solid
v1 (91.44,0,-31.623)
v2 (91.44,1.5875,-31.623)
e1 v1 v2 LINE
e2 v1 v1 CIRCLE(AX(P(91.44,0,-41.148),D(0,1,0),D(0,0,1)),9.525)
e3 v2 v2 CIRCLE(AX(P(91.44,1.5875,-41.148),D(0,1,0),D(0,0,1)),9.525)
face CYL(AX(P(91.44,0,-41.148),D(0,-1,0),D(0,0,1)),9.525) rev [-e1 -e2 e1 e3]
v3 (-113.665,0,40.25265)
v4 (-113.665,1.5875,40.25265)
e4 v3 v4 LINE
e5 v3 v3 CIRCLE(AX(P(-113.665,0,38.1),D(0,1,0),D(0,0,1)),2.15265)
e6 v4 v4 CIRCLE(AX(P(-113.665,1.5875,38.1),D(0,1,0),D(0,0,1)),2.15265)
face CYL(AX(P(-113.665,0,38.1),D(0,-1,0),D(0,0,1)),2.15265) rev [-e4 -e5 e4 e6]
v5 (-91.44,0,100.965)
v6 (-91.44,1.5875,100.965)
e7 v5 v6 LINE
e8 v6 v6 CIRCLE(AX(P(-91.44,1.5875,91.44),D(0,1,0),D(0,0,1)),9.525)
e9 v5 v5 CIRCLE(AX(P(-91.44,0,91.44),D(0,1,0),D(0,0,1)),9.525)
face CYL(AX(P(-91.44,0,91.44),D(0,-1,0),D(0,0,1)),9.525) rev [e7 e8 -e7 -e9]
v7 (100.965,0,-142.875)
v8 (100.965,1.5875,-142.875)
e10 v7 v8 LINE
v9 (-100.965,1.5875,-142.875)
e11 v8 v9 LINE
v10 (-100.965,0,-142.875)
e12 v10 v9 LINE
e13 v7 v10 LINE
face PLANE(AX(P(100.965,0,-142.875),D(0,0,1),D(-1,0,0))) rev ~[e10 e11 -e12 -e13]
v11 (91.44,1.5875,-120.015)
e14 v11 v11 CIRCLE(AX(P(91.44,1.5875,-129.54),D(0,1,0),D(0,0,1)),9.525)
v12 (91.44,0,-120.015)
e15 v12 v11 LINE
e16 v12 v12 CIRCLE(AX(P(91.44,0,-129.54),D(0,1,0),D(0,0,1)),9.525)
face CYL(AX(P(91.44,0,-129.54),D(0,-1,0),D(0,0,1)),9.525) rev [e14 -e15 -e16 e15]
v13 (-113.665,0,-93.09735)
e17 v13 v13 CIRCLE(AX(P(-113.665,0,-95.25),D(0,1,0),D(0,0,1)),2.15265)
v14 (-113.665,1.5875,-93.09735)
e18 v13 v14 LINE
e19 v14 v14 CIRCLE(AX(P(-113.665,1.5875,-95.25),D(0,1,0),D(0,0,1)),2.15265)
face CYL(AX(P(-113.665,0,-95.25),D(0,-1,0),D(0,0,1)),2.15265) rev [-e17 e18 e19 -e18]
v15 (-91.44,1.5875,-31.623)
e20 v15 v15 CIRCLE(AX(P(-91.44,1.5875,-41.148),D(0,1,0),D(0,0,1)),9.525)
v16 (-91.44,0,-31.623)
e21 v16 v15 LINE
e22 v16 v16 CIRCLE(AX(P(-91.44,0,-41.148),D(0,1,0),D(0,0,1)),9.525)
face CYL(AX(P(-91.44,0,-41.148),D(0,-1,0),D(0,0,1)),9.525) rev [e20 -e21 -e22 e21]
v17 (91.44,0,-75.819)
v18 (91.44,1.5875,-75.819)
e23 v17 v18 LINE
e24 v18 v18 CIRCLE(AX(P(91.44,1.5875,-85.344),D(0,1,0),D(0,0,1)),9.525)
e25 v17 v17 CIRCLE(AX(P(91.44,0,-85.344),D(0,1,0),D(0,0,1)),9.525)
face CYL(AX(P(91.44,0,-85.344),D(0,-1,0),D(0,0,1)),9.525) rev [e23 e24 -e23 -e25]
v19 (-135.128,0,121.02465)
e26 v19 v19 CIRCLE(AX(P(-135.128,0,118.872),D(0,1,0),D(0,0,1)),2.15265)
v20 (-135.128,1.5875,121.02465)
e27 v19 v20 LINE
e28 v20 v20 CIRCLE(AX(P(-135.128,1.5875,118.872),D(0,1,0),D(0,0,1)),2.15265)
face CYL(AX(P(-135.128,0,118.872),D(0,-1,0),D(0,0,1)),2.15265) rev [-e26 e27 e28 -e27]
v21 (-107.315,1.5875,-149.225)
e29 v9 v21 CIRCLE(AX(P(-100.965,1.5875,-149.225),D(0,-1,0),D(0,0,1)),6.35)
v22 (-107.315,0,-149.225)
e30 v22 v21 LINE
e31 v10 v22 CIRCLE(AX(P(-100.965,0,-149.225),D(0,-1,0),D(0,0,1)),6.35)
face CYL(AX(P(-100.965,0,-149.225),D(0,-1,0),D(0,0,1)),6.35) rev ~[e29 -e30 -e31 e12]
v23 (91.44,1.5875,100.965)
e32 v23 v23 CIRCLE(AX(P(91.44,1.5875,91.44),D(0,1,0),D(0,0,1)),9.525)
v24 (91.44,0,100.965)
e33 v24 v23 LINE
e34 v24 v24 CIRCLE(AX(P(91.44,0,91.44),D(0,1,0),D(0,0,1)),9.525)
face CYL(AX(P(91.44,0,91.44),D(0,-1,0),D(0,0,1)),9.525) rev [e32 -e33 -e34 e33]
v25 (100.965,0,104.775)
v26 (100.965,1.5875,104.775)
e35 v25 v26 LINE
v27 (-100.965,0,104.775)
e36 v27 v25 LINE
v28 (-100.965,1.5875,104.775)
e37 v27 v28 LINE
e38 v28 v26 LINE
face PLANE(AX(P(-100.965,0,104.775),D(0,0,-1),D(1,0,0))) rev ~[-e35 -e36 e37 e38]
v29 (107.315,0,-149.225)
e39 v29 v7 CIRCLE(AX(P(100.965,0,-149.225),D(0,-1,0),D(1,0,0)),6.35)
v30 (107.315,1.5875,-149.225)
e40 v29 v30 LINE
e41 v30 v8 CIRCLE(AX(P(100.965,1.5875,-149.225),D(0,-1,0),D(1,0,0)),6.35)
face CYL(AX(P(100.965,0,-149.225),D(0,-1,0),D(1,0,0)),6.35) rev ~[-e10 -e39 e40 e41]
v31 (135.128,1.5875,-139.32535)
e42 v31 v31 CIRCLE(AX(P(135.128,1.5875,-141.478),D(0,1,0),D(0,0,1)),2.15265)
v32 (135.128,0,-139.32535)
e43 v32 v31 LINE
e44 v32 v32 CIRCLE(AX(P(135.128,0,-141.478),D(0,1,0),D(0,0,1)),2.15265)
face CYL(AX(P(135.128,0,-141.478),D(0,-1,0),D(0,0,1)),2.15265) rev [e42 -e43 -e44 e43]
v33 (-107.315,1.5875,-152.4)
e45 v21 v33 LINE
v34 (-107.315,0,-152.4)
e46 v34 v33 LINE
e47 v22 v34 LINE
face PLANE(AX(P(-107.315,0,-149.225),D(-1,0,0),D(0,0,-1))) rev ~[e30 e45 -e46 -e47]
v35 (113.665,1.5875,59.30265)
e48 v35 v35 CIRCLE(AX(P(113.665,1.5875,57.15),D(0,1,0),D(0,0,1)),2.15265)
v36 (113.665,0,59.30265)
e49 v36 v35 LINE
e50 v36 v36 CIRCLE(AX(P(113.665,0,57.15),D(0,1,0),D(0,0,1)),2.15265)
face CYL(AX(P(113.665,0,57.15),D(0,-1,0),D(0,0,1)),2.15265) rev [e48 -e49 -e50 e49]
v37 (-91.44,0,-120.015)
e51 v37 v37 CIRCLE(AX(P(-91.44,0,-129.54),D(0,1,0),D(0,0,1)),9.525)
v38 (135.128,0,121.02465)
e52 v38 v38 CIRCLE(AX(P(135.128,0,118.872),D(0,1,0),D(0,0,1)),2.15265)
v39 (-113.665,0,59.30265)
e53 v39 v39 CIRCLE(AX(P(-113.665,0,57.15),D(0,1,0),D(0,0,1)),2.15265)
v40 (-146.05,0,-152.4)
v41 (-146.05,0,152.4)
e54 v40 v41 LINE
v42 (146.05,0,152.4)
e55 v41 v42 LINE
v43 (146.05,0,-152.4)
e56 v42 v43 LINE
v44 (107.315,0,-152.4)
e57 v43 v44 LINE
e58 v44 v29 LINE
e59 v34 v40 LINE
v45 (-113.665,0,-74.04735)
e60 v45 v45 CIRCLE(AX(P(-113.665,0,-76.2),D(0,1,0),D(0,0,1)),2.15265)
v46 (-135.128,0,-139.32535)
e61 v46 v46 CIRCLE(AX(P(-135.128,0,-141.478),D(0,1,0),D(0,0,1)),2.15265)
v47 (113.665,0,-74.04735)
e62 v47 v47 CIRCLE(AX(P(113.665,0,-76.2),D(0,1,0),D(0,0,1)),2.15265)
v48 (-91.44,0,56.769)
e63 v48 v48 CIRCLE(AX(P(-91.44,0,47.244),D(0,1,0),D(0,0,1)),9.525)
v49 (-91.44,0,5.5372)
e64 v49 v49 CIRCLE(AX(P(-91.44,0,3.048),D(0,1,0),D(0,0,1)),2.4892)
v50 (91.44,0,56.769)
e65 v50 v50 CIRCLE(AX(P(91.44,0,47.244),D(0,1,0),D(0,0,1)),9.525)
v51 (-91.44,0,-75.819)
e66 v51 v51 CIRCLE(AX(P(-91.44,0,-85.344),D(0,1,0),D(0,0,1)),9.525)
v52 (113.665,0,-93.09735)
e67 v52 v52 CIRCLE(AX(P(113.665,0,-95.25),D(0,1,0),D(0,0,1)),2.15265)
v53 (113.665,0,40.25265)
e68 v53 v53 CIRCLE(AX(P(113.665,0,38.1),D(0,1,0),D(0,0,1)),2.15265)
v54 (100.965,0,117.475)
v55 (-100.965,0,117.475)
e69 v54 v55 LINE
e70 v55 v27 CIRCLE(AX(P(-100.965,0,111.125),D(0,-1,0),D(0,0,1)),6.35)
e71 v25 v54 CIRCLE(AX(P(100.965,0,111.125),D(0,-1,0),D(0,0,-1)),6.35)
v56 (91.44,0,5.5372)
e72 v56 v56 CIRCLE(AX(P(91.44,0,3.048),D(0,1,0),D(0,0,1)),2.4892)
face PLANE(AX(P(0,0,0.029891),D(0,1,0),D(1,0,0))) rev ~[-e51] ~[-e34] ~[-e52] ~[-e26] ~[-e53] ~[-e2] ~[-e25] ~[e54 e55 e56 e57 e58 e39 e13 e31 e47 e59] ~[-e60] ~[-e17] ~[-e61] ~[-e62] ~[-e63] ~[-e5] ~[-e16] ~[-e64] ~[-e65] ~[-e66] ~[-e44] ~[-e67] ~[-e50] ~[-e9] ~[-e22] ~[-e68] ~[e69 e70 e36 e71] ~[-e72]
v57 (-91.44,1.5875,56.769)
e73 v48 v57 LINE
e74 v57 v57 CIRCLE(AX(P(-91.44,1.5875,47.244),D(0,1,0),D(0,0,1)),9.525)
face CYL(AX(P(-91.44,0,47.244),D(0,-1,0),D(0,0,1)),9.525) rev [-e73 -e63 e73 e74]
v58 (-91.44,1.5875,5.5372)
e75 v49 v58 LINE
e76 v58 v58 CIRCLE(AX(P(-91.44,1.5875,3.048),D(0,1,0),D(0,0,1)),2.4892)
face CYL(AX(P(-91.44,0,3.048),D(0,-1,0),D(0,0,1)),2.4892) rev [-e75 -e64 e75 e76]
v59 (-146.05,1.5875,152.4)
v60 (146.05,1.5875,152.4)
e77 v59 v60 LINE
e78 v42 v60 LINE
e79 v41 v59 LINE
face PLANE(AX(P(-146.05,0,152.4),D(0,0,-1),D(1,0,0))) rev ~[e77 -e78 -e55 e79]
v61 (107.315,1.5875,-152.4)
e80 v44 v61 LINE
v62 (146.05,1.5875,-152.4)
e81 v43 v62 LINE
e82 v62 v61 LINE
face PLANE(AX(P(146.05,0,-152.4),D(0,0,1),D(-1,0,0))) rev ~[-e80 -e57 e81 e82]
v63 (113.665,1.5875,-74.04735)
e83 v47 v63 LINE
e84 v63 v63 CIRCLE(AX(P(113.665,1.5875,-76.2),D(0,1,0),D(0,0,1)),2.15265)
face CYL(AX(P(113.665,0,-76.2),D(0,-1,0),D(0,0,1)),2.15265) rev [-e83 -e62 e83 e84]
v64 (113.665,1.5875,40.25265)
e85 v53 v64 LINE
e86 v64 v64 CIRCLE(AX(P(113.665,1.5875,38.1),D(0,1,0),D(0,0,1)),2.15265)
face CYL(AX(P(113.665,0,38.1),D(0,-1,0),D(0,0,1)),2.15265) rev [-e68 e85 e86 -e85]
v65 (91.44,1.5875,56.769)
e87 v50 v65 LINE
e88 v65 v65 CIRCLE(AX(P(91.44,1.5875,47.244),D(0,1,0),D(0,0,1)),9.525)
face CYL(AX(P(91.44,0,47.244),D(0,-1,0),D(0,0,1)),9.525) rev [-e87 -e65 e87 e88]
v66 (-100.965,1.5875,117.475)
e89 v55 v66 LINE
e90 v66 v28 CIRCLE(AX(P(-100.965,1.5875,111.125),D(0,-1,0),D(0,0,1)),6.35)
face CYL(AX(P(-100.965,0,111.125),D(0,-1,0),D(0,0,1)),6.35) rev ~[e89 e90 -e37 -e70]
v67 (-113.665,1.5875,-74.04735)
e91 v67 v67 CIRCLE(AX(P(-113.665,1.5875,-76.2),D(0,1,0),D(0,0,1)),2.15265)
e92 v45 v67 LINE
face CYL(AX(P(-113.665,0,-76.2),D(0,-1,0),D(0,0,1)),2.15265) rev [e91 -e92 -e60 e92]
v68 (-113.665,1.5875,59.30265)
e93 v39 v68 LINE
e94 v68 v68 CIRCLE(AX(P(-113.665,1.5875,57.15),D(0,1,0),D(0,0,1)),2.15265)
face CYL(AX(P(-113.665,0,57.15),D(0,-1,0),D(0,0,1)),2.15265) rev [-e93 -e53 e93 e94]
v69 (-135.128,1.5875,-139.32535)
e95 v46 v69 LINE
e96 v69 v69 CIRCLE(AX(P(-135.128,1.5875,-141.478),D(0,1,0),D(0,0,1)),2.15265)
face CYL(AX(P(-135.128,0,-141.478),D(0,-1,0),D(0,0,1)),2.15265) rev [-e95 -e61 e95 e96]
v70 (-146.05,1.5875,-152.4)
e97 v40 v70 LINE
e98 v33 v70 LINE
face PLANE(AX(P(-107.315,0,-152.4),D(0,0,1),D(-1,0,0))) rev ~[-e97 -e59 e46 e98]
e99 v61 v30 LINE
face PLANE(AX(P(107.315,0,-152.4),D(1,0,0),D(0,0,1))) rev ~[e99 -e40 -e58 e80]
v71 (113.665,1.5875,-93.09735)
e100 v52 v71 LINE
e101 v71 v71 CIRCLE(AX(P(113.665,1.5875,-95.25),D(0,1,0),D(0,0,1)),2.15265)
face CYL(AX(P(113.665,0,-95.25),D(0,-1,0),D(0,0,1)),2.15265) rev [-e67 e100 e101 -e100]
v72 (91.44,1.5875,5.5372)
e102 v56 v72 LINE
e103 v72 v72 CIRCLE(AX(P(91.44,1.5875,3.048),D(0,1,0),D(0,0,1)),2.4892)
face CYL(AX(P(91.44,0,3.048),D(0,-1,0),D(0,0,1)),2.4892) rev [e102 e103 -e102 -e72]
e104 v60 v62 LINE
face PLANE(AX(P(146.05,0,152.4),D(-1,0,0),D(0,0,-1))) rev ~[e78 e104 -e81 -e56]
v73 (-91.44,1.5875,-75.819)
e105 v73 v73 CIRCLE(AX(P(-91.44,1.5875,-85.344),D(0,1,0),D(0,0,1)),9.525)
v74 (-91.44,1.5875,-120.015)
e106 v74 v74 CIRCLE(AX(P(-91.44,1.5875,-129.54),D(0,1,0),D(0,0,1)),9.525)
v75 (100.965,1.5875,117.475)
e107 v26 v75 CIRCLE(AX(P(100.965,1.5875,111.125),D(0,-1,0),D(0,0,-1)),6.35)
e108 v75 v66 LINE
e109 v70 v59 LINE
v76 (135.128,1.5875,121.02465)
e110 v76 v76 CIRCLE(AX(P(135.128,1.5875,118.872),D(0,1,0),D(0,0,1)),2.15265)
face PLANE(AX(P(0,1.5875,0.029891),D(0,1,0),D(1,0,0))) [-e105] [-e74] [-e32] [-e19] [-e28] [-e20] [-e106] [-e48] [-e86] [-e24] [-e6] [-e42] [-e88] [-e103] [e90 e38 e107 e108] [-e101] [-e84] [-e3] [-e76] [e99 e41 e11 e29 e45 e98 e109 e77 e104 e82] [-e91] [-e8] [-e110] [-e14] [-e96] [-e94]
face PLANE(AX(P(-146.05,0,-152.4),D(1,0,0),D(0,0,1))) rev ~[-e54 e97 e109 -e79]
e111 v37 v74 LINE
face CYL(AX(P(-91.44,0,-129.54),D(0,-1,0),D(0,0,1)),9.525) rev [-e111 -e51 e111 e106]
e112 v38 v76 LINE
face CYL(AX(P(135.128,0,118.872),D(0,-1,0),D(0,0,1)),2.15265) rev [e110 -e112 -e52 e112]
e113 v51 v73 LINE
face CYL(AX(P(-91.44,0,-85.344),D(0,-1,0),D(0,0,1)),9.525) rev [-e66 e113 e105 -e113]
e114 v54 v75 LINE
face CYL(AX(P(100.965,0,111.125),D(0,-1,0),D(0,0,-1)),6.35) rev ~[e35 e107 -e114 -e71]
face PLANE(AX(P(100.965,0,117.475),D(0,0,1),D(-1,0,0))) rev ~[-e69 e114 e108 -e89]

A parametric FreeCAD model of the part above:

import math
import FreeCAD as App
import Part
import Sketcher
Q = App.Units.Quantity

doc = App.newDocument("Part")
body = doc.addObject("PartDesign::Body", "Body")

sketch1 = doc.addObject("Sketcher::SketchObject", "Sketch")
body.addObject(sketch1)
sketch1.AttachmentSupport = (doc.XZ_Plane, [""])
sketch1.MapMode = "FlatFace"
sketch1.addGeometry(Part.LineSegment(App.Vector(-107.3, -152.4, 0), App.Vector(-146.1, -152.4, 0)), False)
sketch1.addGeometry(Part.LineSegment(App.Vector(-146.1, -152.4, 0), App.Vector(-146.1, 152.4, 0)), False)
sketch1.addGeometry(Part.LineSegment(App.Vector(-146.1, 152.4, 0), App.Vector(146.1, 152.4, 0)), False)
sketch1.addGeometry(Part.LineSegment(App.Vector(146.1, 152.4, 0), App.Vector(146.1, -152.4, 0)), False)
sketch1.addGeometry(Part.LineSegment(App.Vector(146.1, -152.4, 0), App.Vector(107.3, -152.4, 0)), False)
sketch1.addGeometry(Part.LineSegment(App.Vector(107.3, -152.4, 0), App.Vector(107.3, -149.2, 0)), False)
sketch1.addGeometry(Part.ArcOfCircle(Part.Circle(App.Vector(101, -149.2, 0), App.Vector(0, 0, 1), 6.3), math.radians(0), math.radians(90)), False)
sketch1.addGeometry(Part.LineSegment(App.Vector(101, -142.9, 0), App.Vector(-101, -142.9, 0)), False)
sketch1.addGeometry(Part.ArcOfCircle(Part.Circle(App.Vector(-101, -149.2, 0), App.Vector(0, 0, 1), 6.3), math.radians(90), math.radians(180)), False)
sketch1.addGeometry(Part.LineSegment(App.Vector(-107.3, -149.2, 0), App.Vector(-107.3, -152.4, 0)), False)
sketch1.addGeometry(Part.Circle(App.Vector(-135.1, 118.9, 0), App.Vector(0, 0, 1), 2.2), False)
sketch1.addGeometry(Part.Circle(App.Vector(-91.4, 91.4, 0), App.Vector(0, 0, 1), 9.5), False)
sketch1.addGeometry(Part.Circle(App.Vector(-113.7, 57.1, 0), App.Vector(0, 0, 1), 2.2), False)
sketch1.addGeometry(Part.Circle(App.Vector(-113.7, 38.1, 0), App.Vector(0, 0, 1), 2.2), False)
sketch1.addGeometry(Part.Circle(App.Vector(-91.4, 47.2, 0), App.Vector(0, 0, 1), 9.5), False)
sketch1.addGeometry(Part.Circle(App.Vector(-91.4, 3, 0), App.Vector(0, 0, 1), 2.5), False)
sketch1.addGeometry(Part.LineSegment(App.Vector(101, 117.5, 0), App.Vector(-101, 117.5, 0)), False)
sketch1.addGeometry(Part.ArcOfCircle(Part.Circle(App.Vector(-101, 111.1, 0), App.Vector(0, 0, 1), 6.3), math.radians(90), math.radians(270)), False)
sketch1.addGeometry(Part.LineSegment(App.Vector(-101, 104.8, 0), App.Vector(101, 104.8, 0)), False)
sketch1.addGeometry(Part.ArcOfCircle(Part.Circle(App.Vector(101, 111.1, 0), App.Vector(0, 0, 1), 6.3), math.radians(-90), math.radians(90)), False)
sketch1.addGeometry(Part.Circle(App.Vector(91.4, 91.4, 0), App.Vector(0, 0, 1), 9.5), False)
sketch1.addGeometry(Part.Circle(App.Vector(135.1, 118.9, 0), App.Vector(0, 0, 1), 2.2), False)
sketch1.addGeometry(Part.Circle(App.Vector(113.7, 57.1, 0), App.Vector(0, 0, 1), 2.2), False)
sketch1.addGeometry(Part.Circle(App.Vector(91.4, 47.2, 0), App.Vector(0, 0, 1), 9.5), False)
sketch1.addGeometry(Part.Circle(App.Vector(113.7, 38.1, 0), App.Vector(0, 0, 1), 2.2), False)
sketch1.addGeometry(Part.Circle(App.Vector(91.4, 3, 0), App.Vector(0, 0, 1), 2.5), False)
sketch1.addGeometry(Part.Circle(App.Vector(-91.4, -41.1, 0), App.Vector(0, 0, 1), 9.5), False)
sketch1.addGeometry(Part.Circle(App.Vector(-113.7, -76.2, 0), App.Vector(0, 0, 1), 2.2), False)
sketch1.addGeometry(Part.Circle(App.Vector(-113.7, -95.2, 0), App.Vector(0, 0, 1), 2.2), False)
sketch1.addGeometry(Part.Circle(App.Vector(-91.4, -85.3, 0), App.Vector(0, 0, 1), 9.5), False)
sketch1.addGeometry(Part.Circle(App.Vector(-135.1, -141.5, 0), App.Vector(0, 0, 1), 2.2), False)
sketch1.addGeometry(Part.Circle(App.Vector(-91.4, -129.5, 0), App.Vector(0, 0, 1), 9.5), False)
sketch1.addGeometry(Part.Circle(App.Vector(91.4, -41.1, 0), App.Vector(0, 0, 1), 9.5), False)
sketch1.addGeometry(Part.Circle(App.Vector(113.7, -76.2, 0), App.Vector(0, 0, 1), 2.2), False)
sketch1.addGeometry(Part.Circle(App.Vector(91.4, -85.3, 0), App.Vector(0, 0, 1), 9.5), False)
sketch1.addGeometry(Part.Circle(App.Vector(113.7, -95.2, 0), App.Vector(0, 0, 1), 2.2), False)
sketch1.addGeometry(Part.Circle(App.Vector(91.4, -129.5, 0), App.Vector(0, 0, 1), 9.5), False)
sketch1.addGeometry(Part.Circle(App.Vector(135.1, -141.5, 0), App.Vector(0, 0, 1), 2.2), False)
sketch1.addConstraint(Sketcher.Constraint("Coincident", 0, 2, 1, 1))
sketch1.addConstraint(Sketcher.Constraint("Coincident", 1, 2, 2, 1))
sketch1.addConstraint(Sketcher.Constraint("Coincident", 2, 2, 3, 1))
sketch1.addConstraint(Sketcher.Constraint("Coincident", 3, 2, 4, 1))
sketch1.addConstraint(Sketcher.Constraint("Coincident", 4, 2, 5, 1))
sketch1.addConstraint(Sketcher.Constraint("Tangent", 5, 2, 6, 1))
sketch1.addConstraint(Sketcher.Constraint("Tangent", 6, 2, 7, 1))
sketch1.addConstraint(Sketcher.Constraint("Tangent", 7, 2, 8, 1))
sketch1.addConstraint(Sketcher.Constraint("Tangent", 8, 2, 9, 1))
sketch1.addConstraint(Sketcher.Constraint("Coincident", 9, 2, 0, 1))
sketch1.addConstraint(Sketcher.Constraint("Tangent", 16, 2, 17, 1))
sketch1.addConstraint(Sketcher.Constraint("Tangent", 17, 2, 18, 1))
sketch1.addConstraint(Sketcher.Constraint("Tangent", 18, 2, 19, 1))
sketch1.addConstraint(Sketcher.Constraint("Tangent", 19, 2, 16, 1))
sketch1.addConstraint(Sketcher.Constraint("Horizontal", 0))
sketch1.addConstraint(Sketcher.Constraint("Vertical", 1))
sketch1.addConstraint(Sketcher.Constraint("Horizontal", 2))
sketch1.addConstraint(Sketcher.Constraint("Vertical", 3))
sketch1.addConstraint(Sketcher.Constraint("Horizontal", 4))
sketch1.addConstraint(Sketcher.Constraint("Vertical", 5))
sketch1.addConstraint(Sketcher.Constraint("Horizontal", 7))
sketch1.addConstraint(Sketcher.Constraint("Vertical", 9))
sketch1.addConstraint(Sketcher.Constraint("Horizontal", 16))
sketch1.addConstraint(Sketcher.Constraint("Horizontal", 18))
sketch1.addConstraint(Sketcher.Constraint("Equal", 6, 8))
sketch1.addConstraint(Sketcher.Constraint("Equal", 10, 12))
sketch1.addConstraint(Sketcher.Constraint("Equal", 12, 13))
sketch1.addConstraint(Sketcher.Constraint("Equal", 11, 14))
sketch1.addConstraint(Sketcher.Constraint("Equal", 8, 17))
sketch1.addConstraint(Sketcher.Constraint("Equal", 14, 20))
sketch1.addConstraint(Sketcher.Constraint("Equal", 13, 21))
sketch1.addConstraint(Sketcher.Constraint("Equal", 21, 22))
sketch1.addConstraint(Sketcher.Constraint("Equal", 20, 23))
sketch1.addConstraint(Sketcher.Constraint("Equal", 22, 24))
sketch1.addConstraint(Sketcher.Constraint("Equal", 15, 25))
sketch1.addConstraint(Sketcher.Constraint("Equal", 23, 26))
sketch1.addConstraint(Sketcher.Constraint("Equal", 24, 27))
sketch1.addConstraint(Sketcher.Constraint("Equal", 27, 28))
sketch1.addConstraint(Sketcher.Constraint("Equal", 26, 29))
sketch1.addConstraint(Sketcher.Constraint("Equal", 28, 30))
sketch1.addConstraint(Sketcher.Constraint("Equal", 29, 31))
sketch1.addConstraint(Sketcher.Constraint("Equal", 31, 32))
sketch1.addConstraint(Sketcher.Constraint("Equal", 30, 33))
sketch1.addConstraint(Sketcher.Constraint("Equal", 32, 34))
sketch1.addConstraint(Sketcher.Constraint("Equal", 33, 35))
sketch1.addConstraint(Sketcher.Constraint("Equal", 34, 36))
sketch1.addConstraint(Sketcher.Constraint("Equal", 35, 37))
sketch1.addConstraint(Sketcher.Constraint("Symmetric", 0, 2, 2, 2, -1, 1))
sketch1.addConstraint(Sketcher.Constraint("Symmetric", 11, 3, 20, 3, -2))
sketch1.addConstraint(Sketcher.Constraint("Symmetric", 10, 3, 21, 3, -2))
sketch1.addConstraint(Sketcher.Constraint("Symmetric", 12, 3, 22, 3, -2))
sketch1.addConstraint(Sketcher.Constraint("Symmetric", 14, 3, 23, 3, -2))
sketch1.addConstraint(Sketcher.Constraint("Symmetric", 13, 3, 24, 3, -2))
sketch1.addConstraint(Sketcher.Constraint("Symmetric", 15, 3, 25, 3, -2))
sketch1.addConstraint(Sketcher.Constraint("Symmetric", 26, 3, 32, 3, -2))
sketch1.addConstraint(Sketcher.Constraint("Symmetric", 27, 3, 33, 3, -2))
sketch1.addConstraint(Sketcher.Constraint("Symmetric", 29, 3, 34, 3, -2))
sketch1.addConstraint(Sketcher.Constraint("Symmetric", 28, 3, 35, 3, -2))
sketch1.addConstraint(Sketcher.Constraint("Symmetric", 31, 3, 36, 3, -2))
sketch1.addConstraint(Sketcher.Constraint("Symmetric", 30, 3, 37, 3, -2))
sketch1.addConstraint(Sketcher.Constraint("Symmetric", 4, 2, 9, 2, -2))
sketch1.addConstraint(Sketcher.Constraint("Vertical", 12, 3, 13, 3))
sketch1.addConstraint(Sketcher.Constraint("Vertical", 11, 3, 14, 3))
sketch1.addConstraint(Sketcher.Constraint("Vertical", 14, 3, 15, 3))
sketch1.addConstraint(Sketcher.Constraint("Vertical", 8, 3, 17, 3))
sketch1.addConstraint(Sketcher.Constraint("Vertical", 6, 3, 19, 3))
sketch1.addConstraint(Sketcher.Constraint("Vertical", 15, 3, 26, 3))
sketch1.addConstraint(Sketcher.Constraint("Vertical", 13, 3, 27, 3))
sketch1.addConstraint(Sketcher.Constraint("Vertical", 27, 3, 28, 3))
sketch1.addConstraint(Sketcher.Constraint("Vertical", 26, 3, 29, 3))
sketch1.addConstraint(Sketcher.Constraint("Vertical", 10, 3, 30, 3))
sketch1.addConstraint(Sketcher.Constraint("Vertical", 29, 3, 31, 3))
sketch1.addConstraint(Sketcher.Constraint("Diameter", 11, Q("0.75 in")))
sketch1.addConstraint(Sketcher.Constraint("DistanceY", 1, 1, 1, 2, Q("12 in")))
sketch1.addConstraint(Sketcher.Constraint("Radius", 6, Q("0.25 in")))
sketch1.addConstraint(Sketcher.Constraint("Diameter", 15, Q("0.196 in")))
sketch1.addConstraint(Sketcher.Constraint("DistanceX", 2, 1, 2, 2, Q("11.5 in")))
sketch1.addConstraint(Sketcher.Constraint("DistanceY", 27, 3, -1, 1, Q("3 in")))
sketch1.addConstraint(Sketcher.Constraint("Diameter", 10, Q("0.1695 in")))
sketch1.addConstraint(Sketcher.Constraint("DistanceX", 7, 2, 7, 1, Q("7.95 in")))
sketch1.addConstraint(Sketcher.Constraint("DistanceX", 11, 3, -1, 1, Q("3.6 in")))
sketch1.addConstraint(Sketcher.Constraint("DistanceY", -1, 1, 11, 3, Q("3.6 in")))
sketch1.addConstraint(Sketcher.Constraint("DistanceY", -1, 1, 13, 3, Q("1.5 in")))
sketch1.addConstraint(Sketcher.Constraint("DistanceY", 31, 3, -1, 1, Q("5.1 in")))
sketch1.addConstraint(Sketcher.Constraint("DistanceX", 12, 3, 8, 3, Q("0.5 in")))
sketch1.addConstraint(Sketcher.Constraint("DistanceY", 5, 1, 5, 2, Q("0.125 in")))
sketch1.addConstraint(Sketcher.Constraint("DistanceX", 10, 3, -1, 1, Q("5.32 in")))
sketch1.addConstraint(Sketcher.Constraint("DistanceY", -1, 1, 10, 3, Q("4.68 in")))
sketch1.addConstraint(Sketcher.Constraint("DistanceY", -1, 1, 12, 3, Q("2.25 in")))
sketch1.addConstraint(Sketcher.Constraint("DistanceY", -1, 1, 14, 3, Q("1.86 in")))
sketch1.addConstraint(Sketcher.Constraint("DistanceY", -1, 1, 15, 3, Q("0.12 in")))
sketch1.addConstraint(Sketcher.Constraint("DistanceY", 26, 3, -1, 1, Q("1.62 in")))
sketch1.addConstraint(Sketcher.Constraint("DistanceY", 28, 3, -1, 1, Q("3.75 in")))
sketch1.addConstraint(Sketcher.Constraint("DistanceY", 29, 3, -1, 1, Q("3.36 in")))
sketch1.addConstraint(Sketcher.Constraint("DistanceY", 30, 3, -1, 1, Q("5.57 in")))
sketch1.addConstraint(Sketcher.Constraint("DistanceY", -1, 1, 17, 3, Q("4.375 in")))
pad1 = doc.addObject("PartDesign::Pad", "Pad")
body.addObject(pad1)
pad1.Profile = sketch1
pad1.Length = Q("0.0625 in")
pad1.Reversed = True

doc.recompute()
